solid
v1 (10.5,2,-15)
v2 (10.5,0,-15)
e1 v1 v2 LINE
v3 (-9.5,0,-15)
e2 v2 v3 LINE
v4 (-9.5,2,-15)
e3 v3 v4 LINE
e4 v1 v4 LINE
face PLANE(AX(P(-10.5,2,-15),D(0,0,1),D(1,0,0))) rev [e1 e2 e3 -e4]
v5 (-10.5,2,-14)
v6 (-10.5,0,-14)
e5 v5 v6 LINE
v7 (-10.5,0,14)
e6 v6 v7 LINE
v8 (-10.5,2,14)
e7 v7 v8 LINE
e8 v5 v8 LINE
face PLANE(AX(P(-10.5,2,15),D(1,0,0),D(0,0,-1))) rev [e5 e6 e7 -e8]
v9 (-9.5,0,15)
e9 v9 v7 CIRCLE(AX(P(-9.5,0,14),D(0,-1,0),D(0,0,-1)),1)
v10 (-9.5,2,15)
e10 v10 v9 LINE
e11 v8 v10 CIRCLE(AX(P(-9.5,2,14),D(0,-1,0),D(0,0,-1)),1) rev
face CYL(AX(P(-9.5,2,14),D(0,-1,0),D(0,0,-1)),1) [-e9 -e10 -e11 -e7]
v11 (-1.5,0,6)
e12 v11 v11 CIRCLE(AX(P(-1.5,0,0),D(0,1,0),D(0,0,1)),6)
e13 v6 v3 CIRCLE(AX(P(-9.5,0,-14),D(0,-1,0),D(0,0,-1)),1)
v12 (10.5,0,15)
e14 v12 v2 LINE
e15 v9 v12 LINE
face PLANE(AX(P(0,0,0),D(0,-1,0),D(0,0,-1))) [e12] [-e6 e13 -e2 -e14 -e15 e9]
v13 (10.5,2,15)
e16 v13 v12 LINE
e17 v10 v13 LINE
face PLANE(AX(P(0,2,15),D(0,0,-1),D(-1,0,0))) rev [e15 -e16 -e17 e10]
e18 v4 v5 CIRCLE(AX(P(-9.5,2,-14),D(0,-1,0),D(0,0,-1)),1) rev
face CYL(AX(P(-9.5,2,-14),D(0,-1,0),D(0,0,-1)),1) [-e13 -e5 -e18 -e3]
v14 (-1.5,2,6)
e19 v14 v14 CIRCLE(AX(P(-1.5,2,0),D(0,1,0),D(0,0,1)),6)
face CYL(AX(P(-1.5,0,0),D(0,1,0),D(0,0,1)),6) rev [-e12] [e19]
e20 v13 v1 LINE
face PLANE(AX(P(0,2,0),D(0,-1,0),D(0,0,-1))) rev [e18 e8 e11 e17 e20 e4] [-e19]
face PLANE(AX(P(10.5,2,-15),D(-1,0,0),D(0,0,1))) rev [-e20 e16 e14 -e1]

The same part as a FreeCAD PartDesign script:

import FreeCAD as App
import Part
import Sketcher


def edges_at(feature, points):
    """Names of the edges that pass closest to the given points."""
    edges = feature.Shape.Edges
    near = lambda p: min(range(len(edges)), key=lambda i: edges[i].distToShape(Part.Vertex(*p))[0])
    return sorted({f"Edge{near(p) + 1}" for p in points})

doc = App.newDocument("Part")
body = doc.addObject("PartDesign::Body", "Body")

# Sketch on XZ plane
sketch1 = doc.addObject("Sketcher::SketchObject", "Sketch")
body.addObject(sketch1)
sketch1.AttachmentSupport = (doc.XZ_Plane, [""])
sketch1.MapMode = "FlatFace"
sketch1.addGeometry([
    Part.LineSegment(App.Vector(-10, 15, 0), App.Vector(10, 15, 0)),
    Part.LineSegment(App.Vector(10, 15, 0), App.Vector(10, -15, 0)),
    Part.LineSegment(App.Vector(10, -15, 0), App.Vector(-10, -15, 0)),
    Part.LineSegment(App.Vector(-10, -15, 0), App.Vector(-10, 15, 0)),
], False)
sketch1.addConstraint([
    Sketcher.Constraint("Coincident", 0, 2, 1, 1),
    Sketcher.Constraint("Coincident", 1, 2, 2, 1),
    Sketcher.Constraint("Coincident", 2, 2, 3, 1),
    Sketcher.Constraint("Coincident", 3, 2, 0, 1),
    Sketcher.Constraint("Horizontal", 0),
    Sketcher.Constraint("Vertical", 1),
    Sketcher.Constraint("Horizontal", 2),
    Sketcher.Constraint("Vertical", 3),
    Sketcher.Constraint("Symmetric", 0, 2, 2, 2, -1, 1),
    Sketcher.Constraint("DistanceX", 0, 1, 0, 2, 21.0),
    Sketcher.Constraint("DistanceY", 1, 2, 1, 1, 30.0),
])
pad1 = doc.addObject("PartDesign::Pad", "Pad")
body.addObject(pad1)
pad1.Profile = sketch1
pad1.Length = 2
pad1.Reversed = True
doc.recompute()

fillet = doc.addObject("PartDesign::Fillet", "Fillet")
body.addObject(fillet)
fillet.Base = (pad1, edges_at(pad1, [(-10.5, 1, 15), (-10.5, 1, -15)]))
fillet.Radius = 1

# Sketch on XZ plane
sketch2 = doc.addObject("Sketcher::SketchObject", "Sketch001")
body.addObject(sketch2)
sketch2.AttachmentSupport = (doc.XZ_Plane, [""])
sketch2.MapMode = "FlatFace"
sketch2.AttachmentOffset = App.Placement(App.Vector(0, 0, -2), App.Rotation())
sketch2.addGeometry(Part.Circle(App.Vector(-2, 0, 0), App.Vector(0, 0, 1), 6), False)
sketch2.addConstraint([
    Sketcher.Constraint("PointOnObject", 0, 3, -1),
    Sketcher.Constraint("Diameter", 0, 12.0),
    Sketcher.Constraint("DistanceX", 0, 3, -1, 1, 1.5),
])
pocket1 = doc.addObject("PartDesign::Pocket", "Pocket")
body.addObject(pocket1)
pocket1.Profile = sketch2
pocket1.Type = "ThroughAll"
pocket1.Reversed = True

doc.recompute()
